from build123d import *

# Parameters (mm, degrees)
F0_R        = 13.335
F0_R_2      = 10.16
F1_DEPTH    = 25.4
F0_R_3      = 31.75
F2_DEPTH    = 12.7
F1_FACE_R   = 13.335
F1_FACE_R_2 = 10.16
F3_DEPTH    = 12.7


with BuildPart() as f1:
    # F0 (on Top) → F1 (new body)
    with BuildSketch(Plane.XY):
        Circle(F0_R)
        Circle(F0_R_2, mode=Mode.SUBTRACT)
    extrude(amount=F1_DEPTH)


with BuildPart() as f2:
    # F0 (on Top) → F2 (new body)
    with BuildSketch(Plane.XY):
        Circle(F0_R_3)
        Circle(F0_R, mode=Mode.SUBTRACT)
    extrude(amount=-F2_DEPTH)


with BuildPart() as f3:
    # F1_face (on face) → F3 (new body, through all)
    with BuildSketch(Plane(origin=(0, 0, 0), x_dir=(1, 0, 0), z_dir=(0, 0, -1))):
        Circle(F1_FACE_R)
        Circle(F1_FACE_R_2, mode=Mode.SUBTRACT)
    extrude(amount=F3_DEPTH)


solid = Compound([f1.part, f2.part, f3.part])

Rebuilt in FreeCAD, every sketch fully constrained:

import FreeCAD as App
import Part
import Sketcher
Q = App.Units.Quantity

doc = App.newDocument("Part")
body = doc.addObject("PartDesign::Body", "Body")

# Sketch on XY plane
sketch1 = body.newObject("Sketcher::SketchObject", "Sketch")
sketch1.AttachmentSupport = (doc.getObject("XY_Plane"), [""])
sketch1.MapMode = "FlatFace"
sketch1.addGeometry([
    Part.Circle(App.Vector(0, 0, 0), App.Vector(0, 0, 1), 13),
    Part.Circle(App.Vector(0, 0, 0), App.Vector(0, 0, 1), 10),
], False)
sketch1.addConstraint([
    Sketcher.Constraint("Coincident", 0, 3, -1, 1),
    Sketcher.Constraint("Coincident", 1, 3, -1, 1),
    Sketcher.Constraint("Diameter", 1, Q("0.8 in")),
    Sketcher.Constraint("Diameter", 0, Q("1.05 in")),
])
pad1 = body.newObject("PartDesign::Pad", "Pad")
pad1.Profile = sketch1
pad1.Length = Q("1 in")
body2 = doc.addObject("PartDesign::Body", "Body001")

# Sketch on XY plane
sketch2 = body2.newObject("Sketcher::SketchObject", "Sketch001")
sketch2.AttachmentSupport = (doc.getObject("XY_Plane001"), [""])
sketch2.MapMode = "FlatFace"
sketch2.addGeometry([
    Part.Circle(App.Vector(0, 0, 0), App.Vector(0, 0, 1), 32),
    Part.Circle(App.Vector(0, 0, 0), App.Vector(0, 0, 1), 13),
], False)
sketch2.addConstraint([
    Sketcher.Constraint("Coincident", 0, 3, -1, 1),
    Sketcher.Constraint("Coincident", 1, 3, -1, 1),
    Sketcher.Constraint("Diameter", 0, Q("2.5 in")),
    Sketcher.Constraint("Diameter", 1, Q("1.05 in")),
])
pad2 = body2.newObject("PartDesign::Pad", "Pad001")
pad2.Profile = sketch2
pad2.Length = Q("0.5 in")
pad2.Reversed = True
body3 = doc.addObject("PartDesign::Body", "Body002")

# Sketch on XY plane
sketch3 = body3.newObject("Sketcher::SketchObject", "Sketch002")
sketch3.AttachmentSupport = (doc.getObject("XY_Plane002"), [""])
sketch3.MapMode = "FlatFace"
sketch3.addGeometry([
    Part.Circle(App.Vector(0, 0, 0), App.Vector(0, 0, 1), 13),
    Part.Circle(App.Vector(0, 0, 0), App.Vector(0, 0, 1), 10),
], False)
sketch3.addConstraint([
    Sketcher.Constraint("Coincident", 0, 3, -1, 1),
    Sketcher.Constraint("Coincident", 1, 3, -1, 1),
    Sketcher.Constraint("Diameter", 1, Q("0.8 in")),
    Sketcher.Constraint("Diameter", 0, Q("1.05 in")),
])
pad3 = body3.newObject("PartDesign::Pad", "Pad002")
pad3.Profile = sketch3
pad3.Length = Q("0.5 in")
pad3.Reversed = True

doc.recompute()
